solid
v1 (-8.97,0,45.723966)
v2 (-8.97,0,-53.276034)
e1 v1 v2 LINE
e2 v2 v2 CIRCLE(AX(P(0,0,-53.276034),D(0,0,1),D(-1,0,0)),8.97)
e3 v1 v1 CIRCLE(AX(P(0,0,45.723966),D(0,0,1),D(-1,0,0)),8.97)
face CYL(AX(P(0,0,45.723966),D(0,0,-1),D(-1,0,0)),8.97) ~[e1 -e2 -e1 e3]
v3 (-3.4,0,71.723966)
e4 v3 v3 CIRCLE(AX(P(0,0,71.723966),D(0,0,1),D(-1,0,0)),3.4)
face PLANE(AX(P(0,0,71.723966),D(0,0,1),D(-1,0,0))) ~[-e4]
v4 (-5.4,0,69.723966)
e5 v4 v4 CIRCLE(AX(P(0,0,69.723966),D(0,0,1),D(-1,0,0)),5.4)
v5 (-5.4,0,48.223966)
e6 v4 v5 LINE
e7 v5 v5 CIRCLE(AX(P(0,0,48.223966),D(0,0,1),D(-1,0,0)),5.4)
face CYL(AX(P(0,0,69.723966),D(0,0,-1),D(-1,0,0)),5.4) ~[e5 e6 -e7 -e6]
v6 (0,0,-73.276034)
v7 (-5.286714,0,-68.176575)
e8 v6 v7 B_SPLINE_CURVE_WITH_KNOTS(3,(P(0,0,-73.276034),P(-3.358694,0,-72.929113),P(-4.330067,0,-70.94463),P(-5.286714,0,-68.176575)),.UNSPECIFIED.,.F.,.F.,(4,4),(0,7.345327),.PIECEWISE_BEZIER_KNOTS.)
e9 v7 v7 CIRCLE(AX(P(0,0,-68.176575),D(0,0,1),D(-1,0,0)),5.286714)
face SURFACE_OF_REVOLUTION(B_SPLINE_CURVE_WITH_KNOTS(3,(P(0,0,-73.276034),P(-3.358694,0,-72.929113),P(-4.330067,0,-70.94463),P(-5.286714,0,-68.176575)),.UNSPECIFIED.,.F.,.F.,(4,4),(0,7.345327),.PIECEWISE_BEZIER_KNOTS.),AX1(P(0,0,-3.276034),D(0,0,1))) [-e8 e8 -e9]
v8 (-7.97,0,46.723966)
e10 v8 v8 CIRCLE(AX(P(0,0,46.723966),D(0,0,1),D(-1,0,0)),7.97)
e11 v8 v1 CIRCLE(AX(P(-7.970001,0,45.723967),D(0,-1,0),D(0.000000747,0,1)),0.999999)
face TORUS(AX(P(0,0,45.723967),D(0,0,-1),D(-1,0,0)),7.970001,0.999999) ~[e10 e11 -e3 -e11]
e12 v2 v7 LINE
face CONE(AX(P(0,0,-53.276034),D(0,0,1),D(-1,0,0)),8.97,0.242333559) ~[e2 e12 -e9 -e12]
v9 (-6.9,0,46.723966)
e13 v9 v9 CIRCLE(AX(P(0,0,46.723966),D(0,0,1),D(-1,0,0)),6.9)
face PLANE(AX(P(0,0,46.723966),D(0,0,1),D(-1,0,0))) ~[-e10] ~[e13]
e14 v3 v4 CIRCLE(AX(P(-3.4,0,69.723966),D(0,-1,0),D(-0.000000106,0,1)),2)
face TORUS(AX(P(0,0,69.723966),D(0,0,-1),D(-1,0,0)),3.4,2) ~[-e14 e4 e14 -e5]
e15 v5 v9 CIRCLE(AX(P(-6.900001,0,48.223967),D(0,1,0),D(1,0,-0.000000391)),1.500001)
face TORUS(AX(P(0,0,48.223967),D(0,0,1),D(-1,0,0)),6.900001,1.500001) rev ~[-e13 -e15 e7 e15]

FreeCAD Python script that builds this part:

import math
import FreeCAD as App
import Part
import Sketcher
from FreeCAD import Vector
Q = App.Units.Quantity

doc = App.newDocument("Part")
body = doc.addObject("PartDesign::Body", "Body")

sketch1 = body.newObject("Sketcher::SketchObject", "Sketch")
sketch1.AttachmentSupport = (doc.getObject("XZ_Plane"), [""])
sketch1.MapMode = "FlatFace"
sketch1.addGeometry([
    Part.LineSegment(Vector(0, 71.723966, 0), Vector(-3.4, 71.723966, 0)),
    Part.ArcOfCircle(Part.Circle(Vector(-3.4, 69.723966, 0), Vector(0, 0, 1), 2), math.radians(90.000006), math.radians(179.999994)),
    Part.LineSegment(Vector(-5.4, 69.723966, 0), Vector(-5.4, 48.223966, 0)),
    Part.ArcOfCircle(Part.Circle(Vector(-6.900001, 48.223967, 0), Vector(0, 0, 1), 1.500001), math.radians(-89.999978), math.radians(-0.000022)),
    Part.LineSegment(Vector(-6.9, 46.723966, 0), Vector(-7.97, 46.723966, 0)),
    Part.ArcOfCircle(Part.Circle(Vector(-7.970001, 45.723967, 0), Vector(0, 0, 1), 0.999999), math.radians(89.999957), math.radians(180.000043)),
    Part.LineSegment(Vector(-8.97, 45.723966, 0), Vector(-8.97, -53.276034, 0)),
    Part.LineSegment(Vector(-8.97, -53.276034, 0), Vector(-5.286714, -68.176575, 0)),
    Part.BSplineCurve([Vector(0, -73.276034, 0), Vector(-3.358694, -72.929113, 0), Vector(-4.330067, -70.94463, 0), Vector(-5.286714, -68.176575, 0)], [4, 4], [0, 7.345327], False, 3, [1, 1, 1, 1], False),
    Part.LineSegment(Vector(0, -73.276034, 0), Vector(0, 71.723966, 0)),
], False)
sketch1.addConstraint([
    Sketcher.Constraint("Block", 8),
    Sketcher.Constraint("Tangent", 0, 2, 1, 1),
    Sketcher.Constraint("Tangent", 1, 2, 2, 1),
    Sketcher.Constraint("Tangent", 2, 2, 3, 2),
    Sketcher.Constraint("Tangent", 3, 1, 4, 1),
    Sketcher.Constraint("Tangent", 4, 2, 5, 1),
    Sketcher.Constraint("Tangent", 5, 2, 6, 1),
    Sketcher.Constraint("Coincident", 6, 2, 7, 1),
    Sketcher.Constraint("Coincident", 7, 2, 8, 2),
    Sketcher.Constraint("Coincident", 8, 1, 9, 1),
    Sketcher.Constraint("Coincident", 9, 2, 0, 1),
    Sketcher.Constraint("Horizontal", 0),
    Sketcher.Constraint("Vertical", 2),
    Sketcher.Constraint("Horizontal", 4),
    Sketcher.Constraint("Vertical", 6),
    Sketcher.Constraint("Vertical", 9),
    Sketcher.Constraint("Radius", 1, Q("2 mm")),
    Sketcher.Constraint("Radius", 5, Q("0.999999 mm")),
    Sketcher.Constraint("Radius", 3, Q("1.500001 mm")),
    Sketcher.Constraint("DistanceY", 6, 2, 6, 1, Q("99 mm")),
    Sketcher.Constraint("DistanceY", 9, 1, 9, 2, Q("145 mm")),
    Sketcher.Constraint("DistanceX", 0, 2, 0, 1, Q("3.4 mm")),
    Sketcher.Constraint("DistanceY", 2, 2, 2, 1, Q("21.5 mm")),
    Sketcher.Constraint("DistanceX", 4, 2, 4, 1, Q("1.07 mm")),
])
revolution = body.newObject("PartDesign::Revolution", "Revolution")
revolution.Profile = sketch1
revolution.ReferenceAxis = (sketch1, ["V_Axis"])
revolution.Angle = 360

doc.recompute()
